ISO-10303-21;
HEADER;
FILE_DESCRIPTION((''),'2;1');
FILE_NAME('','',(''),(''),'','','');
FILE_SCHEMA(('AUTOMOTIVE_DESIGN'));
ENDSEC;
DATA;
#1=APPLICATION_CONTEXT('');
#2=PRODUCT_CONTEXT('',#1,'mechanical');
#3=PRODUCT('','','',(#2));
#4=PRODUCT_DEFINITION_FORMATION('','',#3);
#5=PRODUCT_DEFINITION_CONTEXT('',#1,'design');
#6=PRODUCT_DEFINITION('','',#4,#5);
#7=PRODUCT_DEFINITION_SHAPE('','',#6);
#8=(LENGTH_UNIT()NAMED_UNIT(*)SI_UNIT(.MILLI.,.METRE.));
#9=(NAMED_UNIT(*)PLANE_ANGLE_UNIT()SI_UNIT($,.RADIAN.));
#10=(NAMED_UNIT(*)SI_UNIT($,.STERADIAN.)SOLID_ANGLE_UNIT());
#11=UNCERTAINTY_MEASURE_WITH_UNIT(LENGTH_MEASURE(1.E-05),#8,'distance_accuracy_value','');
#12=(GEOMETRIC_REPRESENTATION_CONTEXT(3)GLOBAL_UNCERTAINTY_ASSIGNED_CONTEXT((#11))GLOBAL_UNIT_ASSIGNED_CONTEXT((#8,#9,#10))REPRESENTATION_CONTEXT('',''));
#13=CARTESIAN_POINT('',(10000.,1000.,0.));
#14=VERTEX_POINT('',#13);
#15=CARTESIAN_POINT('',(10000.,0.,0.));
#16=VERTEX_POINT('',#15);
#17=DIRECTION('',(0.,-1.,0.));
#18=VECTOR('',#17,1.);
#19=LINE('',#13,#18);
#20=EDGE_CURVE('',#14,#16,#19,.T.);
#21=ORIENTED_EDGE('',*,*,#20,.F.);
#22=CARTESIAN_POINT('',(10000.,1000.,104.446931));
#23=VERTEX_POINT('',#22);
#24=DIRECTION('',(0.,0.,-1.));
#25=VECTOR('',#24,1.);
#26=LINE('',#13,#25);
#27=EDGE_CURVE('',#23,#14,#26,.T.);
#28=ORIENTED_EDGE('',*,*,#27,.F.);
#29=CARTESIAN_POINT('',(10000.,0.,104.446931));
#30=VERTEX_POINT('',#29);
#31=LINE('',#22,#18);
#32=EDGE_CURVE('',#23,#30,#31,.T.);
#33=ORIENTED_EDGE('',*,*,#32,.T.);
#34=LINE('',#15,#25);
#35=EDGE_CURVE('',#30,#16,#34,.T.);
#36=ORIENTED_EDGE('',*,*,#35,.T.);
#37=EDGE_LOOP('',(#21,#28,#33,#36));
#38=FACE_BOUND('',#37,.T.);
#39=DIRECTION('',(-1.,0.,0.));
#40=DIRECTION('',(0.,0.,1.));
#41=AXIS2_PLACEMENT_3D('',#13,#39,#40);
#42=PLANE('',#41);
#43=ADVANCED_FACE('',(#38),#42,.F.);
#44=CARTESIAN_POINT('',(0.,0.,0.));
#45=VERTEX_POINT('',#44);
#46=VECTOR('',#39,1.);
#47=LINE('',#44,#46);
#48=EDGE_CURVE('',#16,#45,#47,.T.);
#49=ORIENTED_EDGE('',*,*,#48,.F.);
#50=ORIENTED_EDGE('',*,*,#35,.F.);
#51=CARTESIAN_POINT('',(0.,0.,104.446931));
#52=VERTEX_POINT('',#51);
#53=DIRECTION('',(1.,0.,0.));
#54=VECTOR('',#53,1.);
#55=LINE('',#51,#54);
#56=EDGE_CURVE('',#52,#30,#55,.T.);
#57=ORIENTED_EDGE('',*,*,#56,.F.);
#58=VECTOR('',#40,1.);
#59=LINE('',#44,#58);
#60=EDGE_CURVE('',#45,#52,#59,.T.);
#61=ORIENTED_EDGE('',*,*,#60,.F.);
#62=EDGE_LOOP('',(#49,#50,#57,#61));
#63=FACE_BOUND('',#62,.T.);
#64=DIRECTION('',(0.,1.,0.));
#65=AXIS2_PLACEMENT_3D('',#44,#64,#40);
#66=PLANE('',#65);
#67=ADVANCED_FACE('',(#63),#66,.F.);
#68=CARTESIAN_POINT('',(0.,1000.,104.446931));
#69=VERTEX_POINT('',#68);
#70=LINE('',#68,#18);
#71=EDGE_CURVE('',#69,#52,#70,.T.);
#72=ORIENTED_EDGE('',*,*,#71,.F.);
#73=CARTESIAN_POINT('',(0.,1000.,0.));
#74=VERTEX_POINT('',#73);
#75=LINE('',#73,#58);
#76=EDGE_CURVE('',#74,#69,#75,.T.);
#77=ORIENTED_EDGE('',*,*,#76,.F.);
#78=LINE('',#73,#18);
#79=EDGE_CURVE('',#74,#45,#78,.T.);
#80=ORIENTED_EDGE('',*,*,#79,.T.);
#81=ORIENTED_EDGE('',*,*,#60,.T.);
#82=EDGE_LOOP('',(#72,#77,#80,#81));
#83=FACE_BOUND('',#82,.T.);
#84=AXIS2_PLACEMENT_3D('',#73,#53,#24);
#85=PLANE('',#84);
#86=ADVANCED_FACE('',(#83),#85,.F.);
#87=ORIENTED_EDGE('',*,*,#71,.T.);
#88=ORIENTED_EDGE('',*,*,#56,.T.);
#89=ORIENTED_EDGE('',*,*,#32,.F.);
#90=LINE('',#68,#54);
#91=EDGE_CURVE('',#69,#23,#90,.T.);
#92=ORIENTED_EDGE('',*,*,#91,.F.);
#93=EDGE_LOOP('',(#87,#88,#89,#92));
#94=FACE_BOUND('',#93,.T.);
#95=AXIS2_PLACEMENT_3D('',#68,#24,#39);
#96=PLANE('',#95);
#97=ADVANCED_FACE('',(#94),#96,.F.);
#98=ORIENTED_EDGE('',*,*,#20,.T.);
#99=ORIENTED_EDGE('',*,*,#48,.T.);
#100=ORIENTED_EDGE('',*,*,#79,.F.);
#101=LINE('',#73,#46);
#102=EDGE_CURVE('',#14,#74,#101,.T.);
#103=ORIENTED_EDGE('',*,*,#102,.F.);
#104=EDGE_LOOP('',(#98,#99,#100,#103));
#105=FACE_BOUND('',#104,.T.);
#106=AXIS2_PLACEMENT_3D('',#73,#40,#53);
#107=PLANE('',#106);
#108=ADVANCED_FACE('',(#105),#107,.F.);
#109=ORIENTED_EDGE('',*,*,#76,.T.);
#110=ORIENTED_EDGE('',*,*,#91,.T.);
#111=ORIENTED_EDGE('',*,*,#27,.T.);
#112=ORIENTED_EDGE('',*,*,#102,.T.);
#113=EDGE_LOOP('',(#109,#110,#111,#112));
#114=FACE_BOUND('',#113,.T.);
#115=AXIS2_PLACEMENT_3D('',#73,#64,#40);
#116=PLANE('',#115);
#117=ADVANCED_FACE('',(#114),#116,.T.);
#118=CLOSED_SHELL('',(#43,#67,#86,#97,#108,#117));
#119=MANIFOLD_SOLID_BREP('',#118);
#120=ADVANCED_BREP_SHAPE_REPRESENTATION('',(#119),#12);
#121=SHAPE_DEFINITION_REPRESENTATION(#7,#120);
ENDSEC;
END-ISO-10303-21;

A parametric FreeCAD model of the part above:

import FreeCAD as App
import Part
import Sketcher
Q = App.Units.Quantity


def add_polygon(sketch, points):
    """Adds a closed chain of lines whose ends are joined by coincident constraints."""
    first, n = sketch.GeometryCount, len(points)
    for a, b in zip(points, points[1:] + points[:1]):
        sketch.addGeometry(Part.LineSegment(App.Vector(*a, 0), App.Vector(*b, 0)), False)
    for i in range(n):
        sketch.addConstraint(Sketcher.Constraint("Coincident", first + i, 2, first + (i + 1) % n, 1))

doc = App.newDocument("Part")
body = doc.addObject("PartDesign::Body", "Body")

# Sketch on XZ plane
sketch1 = doc.addObject("Sketcher::SketchObject", "Sketch")
body.addObject(sketch1)
sketch1.AttachmentSupport = (doc.XZ_Plane, [""])
sketch1.MapMode = "FlatFace"
add_polygon(sketch1, [(0, 0), (0, 104), (10000, 104), (10000, 0)])  # lines 0-3
sketch1.addConstraint([
    Sketcher.Constraint("Vertical", 0),
    Sketcher.Constraint("Horizontal", 1),
    Sketcher.Constraint("Vertical", 2),
    Sketcher.Constraint("Horizontal", 3),
    Sketcher.Constraint("Coincident", 3, 2, -1, 1),
    Sketcher.Constraint("DistanceX", 1, 1, 1, 2, Q("10000 mm")),
    Sketcher.Constraint("DistanceY", 0, 1, 0, 2, Q("104.446931 mm")),
])
pad1 = doc.addObject("PartDesign::Pad", "Pad")
body.addObject(pad1)
pad1.Profile = sketch1
pad1.Length = 1000
pad1.Reversed = True

doc.recompute()
